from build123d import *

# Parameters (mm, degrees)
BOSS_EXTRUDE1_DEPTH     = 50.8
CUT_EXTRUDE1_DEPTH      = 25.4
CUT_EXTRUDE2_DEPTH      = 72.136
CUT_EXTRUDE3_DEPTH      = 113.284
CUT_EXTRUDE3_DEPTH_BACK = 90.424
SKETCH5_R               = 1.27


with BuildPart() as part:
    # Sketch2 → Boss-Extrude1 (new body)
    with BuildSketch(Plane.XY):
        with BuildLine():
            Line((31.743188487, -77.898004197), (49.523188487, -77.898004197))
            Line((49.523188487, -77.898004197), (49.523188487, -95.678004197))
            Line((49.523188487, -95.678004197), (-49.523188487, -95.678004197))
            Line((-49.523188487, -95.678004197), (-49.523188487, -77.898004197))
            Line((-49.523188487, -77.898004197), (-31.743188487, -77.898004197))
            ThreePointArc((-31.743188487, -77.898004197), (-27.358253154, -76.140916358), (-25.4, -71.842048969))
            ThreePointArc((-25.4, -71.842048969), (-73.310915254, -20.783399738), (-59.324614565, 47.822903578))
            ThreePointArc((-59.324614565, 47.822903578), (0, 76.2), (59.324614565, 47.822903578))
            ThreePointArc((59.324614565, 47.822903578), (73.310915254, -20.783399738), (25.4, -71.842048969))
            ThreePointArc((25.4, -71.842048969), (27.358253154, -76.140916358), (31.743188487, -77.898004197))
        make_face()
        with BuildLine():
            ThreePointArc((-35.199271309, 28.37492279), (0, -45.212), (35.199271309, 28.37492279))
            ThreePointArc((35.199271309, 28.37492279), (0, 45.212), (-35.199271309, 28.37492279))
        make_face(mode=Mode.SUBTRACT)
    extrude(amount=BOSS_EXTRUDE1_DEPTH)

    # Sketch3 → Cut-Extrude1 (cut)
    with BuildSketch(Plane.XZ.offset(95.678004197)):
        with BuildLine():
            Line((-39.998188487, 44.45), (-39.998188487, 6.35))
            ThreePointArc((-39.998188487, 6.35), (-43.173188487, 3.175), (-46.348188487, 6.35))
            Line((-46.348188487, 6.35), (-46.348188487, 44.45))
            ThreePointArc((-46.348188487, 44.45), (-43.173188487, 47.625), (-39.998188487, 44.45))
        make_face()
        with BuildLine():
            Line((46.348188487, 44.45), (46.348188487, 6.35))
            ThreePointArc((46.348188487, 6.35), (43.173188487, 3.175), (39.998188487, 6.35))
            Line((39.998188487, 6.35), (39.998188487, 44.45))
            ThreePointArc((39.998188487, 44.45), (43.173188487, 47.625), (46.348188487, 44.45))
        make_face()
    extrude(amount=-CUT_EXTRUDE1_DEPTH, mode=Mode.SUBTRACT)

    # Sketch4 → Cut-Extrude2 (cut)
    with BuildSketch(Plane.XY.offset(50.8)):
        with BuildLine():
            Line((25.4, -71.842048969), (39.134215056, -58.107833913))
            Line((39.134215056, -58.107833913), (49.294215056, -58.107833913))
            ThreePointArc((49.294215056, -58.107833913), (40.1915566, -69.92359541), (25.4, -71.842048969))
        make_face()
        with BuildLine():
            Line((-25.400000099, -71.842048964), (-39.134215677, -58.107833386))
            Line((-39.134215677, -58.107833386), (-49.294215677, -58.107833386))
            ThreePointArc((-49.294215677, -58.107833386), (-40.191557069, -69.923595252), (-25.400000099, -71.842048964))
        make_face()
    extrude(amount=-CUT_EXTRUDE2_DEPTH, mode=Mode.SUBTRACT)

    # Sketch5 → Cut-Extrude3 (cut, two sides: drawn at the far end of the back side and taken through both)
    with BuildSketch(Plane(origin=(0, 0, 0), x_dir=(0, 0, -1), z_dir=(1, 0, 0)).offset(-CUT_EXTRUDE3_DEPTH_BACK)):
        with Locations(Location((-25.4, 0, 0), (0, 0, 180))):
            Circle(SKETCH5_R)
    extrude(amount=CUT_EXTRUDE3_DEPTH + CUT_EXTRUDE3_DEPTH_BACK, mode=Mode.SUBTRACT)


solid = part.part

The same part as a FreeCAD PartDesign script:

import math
import FreeCAD as App
import Part
import Sketcher

V = App.Vector
Q = App.Units.Quantity

doc = App.newDocument("Part")
body = doc.addObject("PartDesign::Body", "Body")

# Sketch on XY plane
sketch1 = doc.addObject("Sketcher::SketchObject", "Sketch")
body.addObject(sketch1)
sketch1.AttachmentSupport = (doc.XY_Plane, [""])
sketch1.MapMode = "FlatFace"
sketch1.addGeometry([
    Part.LineSegment(V(50, -78, 0), V(32, -78, 0)),  # 0
    Part.ArcOfCircle(Part.Circle(V(32, -72, 0), V(0, 0, 1), 6), math.radians(-177), math.radians(-90)),  # 1
    Part.ArcOfCircle(Part.Circle(V(0, 0, 0), V(0, 0, 1), 76), math.radians(-71), math.radians(39)),  # 2
    Part.ArcOfCircle(Part.Circle(V(0, 0, 0), V(0, 0, 1), 76), math.radians(39), math.radians(141)),  # 3
    Part.ArcOfCircle(Part.Circle(V(0, 0, 0), V(0, 0, 1), 76), math.radians(141), math.radians(251)),  # 4
    Part.ArcOfCircle(Part.Circle(V(-32, -72, 0), V(0, 0, 1), 6), math.radians(-90), math.radians(-3)),  # 5
    Part.LineSegment(V(-32, -78, 0), V(-50, -78, 0)),  # 6
    Part.LineSegment(V(-50, -78, 0), V(-50, -96, 0)),  # 7
    Part.LineSegment(V(-50, -96, 0), V(50, -96, 0)),  # 8
    Part.LineSegment(V(50, -96, 0), V(50, -78, 0)),  # 9
    Part.ArcOfCircle(Part.Circle(V(0, 0, 0), V(0, 0, 1), 45), math.radians(39), math.radians(141)),  # 10
    Part.ArcOfCircle(Part.Circle(V(0, 0, 0), V(0, 0, 1), 45), math.radians(141), math.radians(399)),  # 11
], False)
sketch1.addConstraint([
    Sketcher.Constraint("Tangent", 0, 2, 1, 2),
    Sketcher.Constraint("Coincident", 1, 1, 2, 1),
    Sketcher.Constraint("Tangent", 2, 2, 3, 1),
    Sketcher.Constraint("Tangent", 3, 2, 4, 1),
    Sketcher.Constraint("Coincident", 4, 2, 5, 2),
    Sketcher.Constraint("Tangent", 5, 1, 6, 1),
    Sketcher.Constraint("Coincident", 6, 2, 7, 1),
    Sketcher.Constraint("Coincident", 7, 2, 8, 1),
    Sketcher.Constraint("Coincident", 8, 2, 9, 1),
    Sketcher.Constraint("Coincident", 9, 2, 0, 1),
    Sketcher.Constraint("Tangent", 10, 1, 11, 2),
    Sketcher.Constraint("Coincident", 11, 1, 10, 2),
    Sketcher.Constraint("Horizontal", 0),
    Sketcher.Constraint("Horizontal", 6),
    Sketcher.Constraint("Vertical", 7),
    Sketcher.Constraint("Horizontal", 8),
    Sketcher.Constraint("Vertical", 9),
    Sketcher.Constraint("Coincident", 2, 3, -1, 1),
    Sketcher.Constraint("Coincident", 4, 3, -1, 1),
    Sketcher.Constraint("Coincident", 10, 3, -1, 1),
    Sketcher.Constraint("Equal", 1, 5),
    Sketcher.Constraint("Symmetric", 1, 3, 5, 3, -2),
    Sketcher.Constraint("Horizontal", 2, 2, 3, 2),
    Sketcher.Constraint("Horizontal", 10, 1, 11, 1),
    Sketcher.Constraint("Equal", 0, 6),
    Sketcher.Constraint("Equal", 6, 7),
    Sketcher.Constraint("Radius", 2, Q("3 in")),
    Sketcher.Constraint("Radius", 1, Q("0.25 in")),
    Sketcher.Constraint("Radius", 10, Q("1.78 in")),
    Sketcher.Constraint("DistanceX", 0, 2, 0, 1, Q("0.7 in")),
    Sketcher.Constraint("DistanceX", -1, 1, 1, 1, Q("1 in")),
    Sketcher.Constraint("DistanceX", 8, 1, 8, 2, Q("99.046377 mm")),
    Sketcher.Constraint("DistanceX", -1, 1, 10, 1, Q("35.199271 mm")),
    Sketcher.Constraint("DistanceY", 10, 1, 2, 2, Q("19.447981 mm")),
])
pad1 = doc.addObject("PartDesign::Pad", "Pad")
body.addObject(pad1)
pad1.Profile = sketch1
pad1.Length = Q("2 in")

# Sketch on XZ plane
sketch2 = doc.addObject("Sketcher::SketchObject", "Sketch001")
body.addObject(sketch2)
sketch2.AttachmentSupport = (doc.XZ_Plane, [""])
sketch2.MapMode = "FlatFace"
sketch2.AttachmentOffset = App.Placement(V(0, 0, 95.678004), App.Rotation())
sketch2.addGeometry([
    Part.LineSegment(V(-40, 6.3, 0), V(-40, 44.5, 0)),  # 0
    Part.ArcOfCircle(Part.Circle(V(-43.2, 44.5, 0), V(0, 0, 1), 3.2), math.radians(0), math.radians(180)),  # 1
    Part.LineSegment(V(-46.3, 44.5, 0), V(-46.3, 6.3, 0)),  # 2
    Part.ArcOfCircle(Part.Circle(V(-43.2, 6.3, 0), V(0, 0, 1), 3.2), math.radians(180), math.radians(360)),  # 3
    Part.LineSegment(V(46.3, 6.3, 0), V(46.3, 44.5, 0)),  # 4
    Part.ArcOfCircle(Part.Circle(V(43.2, 44.5, 0), V(0, 0, 1), 3.2), math.radians(0), math.radians(180)),  # 5
    Part.LineSegment(V(40, 44.5, 0), V(40, 6.3, 0)),  # 6
    Part.ArcOfCircle(Part.Circle(V(43.2, 6.3, 0), V(0, 0, 1), 3.2), math.radians(180), math.radians(360)),  # 7
], False)
sketch2.addConstraint([
    Sketcher.Constraint("Tangent", 0, 2, 1, 1),
    Sketcher.Constraint("Tangent", 1, 2, 2, 1),
    Sketcher.Constraint("Tangent", 2, 2, 3, 1),
    Sketcher.Constraint("Tangent", 3, 2, 0, 1),
    Sketcher.Constraint("Tangent", 4, 2, 5, 1),
    Sketcher.Constraint("Tangent", 5, 2, 6, 1),
    Sketcher.Constraint("Tangent", 6, 2, 7, 1),
    Sketcher.Constraint("Tangent", 7, 2, 4, 1),
    Sketcher.Constraint("Vertical", 0),
    Sketcher.Constraint("Vertical", 2),
    Sketcher.Constraint("Vertical", 4),
    Sketcher.Constraint("Vertical", 6),
    Sketcher.Constraint("Equal", 3, 5),
    Sketcher.Constraint("Symmetric", 1, 3, 5, 3, -2),
    Sketcher.Constraint("Horizontal", 3, 3, 7, 3),
    Sketcher.Constraint("DistanceY", 0, 1, 0, 2, Q("1.5 in")),
    Sketcher.Constraint("Radius", 1, Q("0.125 in")),
    Sketcher.Constraint("DistanceY", -1, 1, 1, 3, Q("1.75 in")),
    Sketcher.Constraint("DistanceX", 1, 3, -1, 1, Q("43.173188 mm")),
])
pocket1 = doc.addObject("PartDesign::Pocket", "Pocket")
body.addObject(pocket1)
pocket1.Profile = sketch2
pocket1.Length = Q("1 in")

# Sketch on XY plane
sketch3 = doc.addObject("Sketcher::SketchObject", "Sketch002")
body.addObject(sketch3)
sketch3.AttachmentSupport = (doc.XY_Plane, [""])
sketch3.MapMode = "FlatFace"
sketch3.AttachmentOffset = App.Placement(V(0, 0, 2 * 25.4), App.Rotation())
sketch3.addGeometry([
    Part.LineSegment(V(39, -58, 0), V(25, -72, 0)),  # 0
    Part.ArcOfCircle(Part.Circle(V(30, -53, 0), V(0, 0, 1), 19), math.radians(-105), math.radians(-15)),  # 1
    Part.LineSegment(V(49, -58, 0), V(39, -58, 0)),  # 2
    Part.LineSegment(V(-25, -72, 0), V(-39, -58, 0)),  # 3
    Part.LineSegment(V(-39, -58, 0), V(-49, -58, 0)),  # 4
    Part.ArcOfCircle(Part.Circle(V(-30, -53, 0), V(0, 0, 1), 19), math.radians(-165), math.radians(-75)),  # 5
], False)
sketch3.addConstraint([
    Sketcher.Constraint("Coincident", 0, 2, 1, 1),
    Sketcher.Constraint("Coincident", 1, 2, 2, 1),
    Sketcher.Constraint("Coincident", 2, 2, 0, 1),
    Sketcher.Constraint("Coincident", 3, 2, 4, 1),
    Sketcher.Constraint("Coincident", 4, 2, 5, 1),
    Sketcher.Constraint("Coincident", 5, 2, 3, 1),
    Sketcher.Constraint("Horizontal", 2),
    Sketcher.Constraint("Horizontal", 4),
    Sketcher.Constraint("Equal", 1, 5),
    Sketcher.Constraint("Symmetric", 1, 3, 5, 3, -2),
    Sketcher.Constraint("Symmetric", 2, 2, 3, 2, -2),
    Sketcher.Constraint("Perpendicular", 0, 3),
    Sketcher.Constraint("Horizontal", 0, 2, 5, 2),
    Sketcher.Constraint("DistanceX", 2, 2, 2, 1, Q("0.4 in")),
    Sketcher.Constraint("DistanceX", -1, 1, 0, 2, Q("1 in")),
    Sketcher.Constraint("DistanceX", -1, 1, 1, 3, Q("1.2 in")),
    Sketcher.Constraint("Radius", 1, Q("19.487973 mm")),
    Sketcher.Constraint("DistanceY", 0, 2, -1, 1, Q("71.842049 mm")),
])
pocket2 = doc.addObject("PartDesign::Pocket", "Pocket001")
body.addObject(pocket2)
pocket2.Profile = sketch3
pocket2.Length = Q("2.84 in")

# Sketch on YZ plane
sketch4 = doc.addObject("Sketcher::SketchObject", "Sketch003")
body.addObject(sketch4)
sketch4.AttachmentSupport = (doc.YZ_Plane, [""])
sketch4.MapMode = "FlatFace"
sketch4.addGeometry(Part.Circle(V(0, 25.4, 0), V(0, 0, 1), 1.3), False)
sketch4.addConstraint([
    Sketcher.Constraint("PointOnObject", 0, 3, -2),
    Sketcher.Constraint("Diameter", 0, Q("0.1 in")),
    Sketcher.Constraint("DistanceY", -1, 1, 0, 3, Q("1 in")),
])
pocket3 = doc.addObject("PartDesign::Pocket", "Pocket002")
body.addObject(pocket3)
pocket3.Profile = sketch4
pocket3.Type = "ThroughAll"
pocket3.Midplane = True

doc.recompute()
